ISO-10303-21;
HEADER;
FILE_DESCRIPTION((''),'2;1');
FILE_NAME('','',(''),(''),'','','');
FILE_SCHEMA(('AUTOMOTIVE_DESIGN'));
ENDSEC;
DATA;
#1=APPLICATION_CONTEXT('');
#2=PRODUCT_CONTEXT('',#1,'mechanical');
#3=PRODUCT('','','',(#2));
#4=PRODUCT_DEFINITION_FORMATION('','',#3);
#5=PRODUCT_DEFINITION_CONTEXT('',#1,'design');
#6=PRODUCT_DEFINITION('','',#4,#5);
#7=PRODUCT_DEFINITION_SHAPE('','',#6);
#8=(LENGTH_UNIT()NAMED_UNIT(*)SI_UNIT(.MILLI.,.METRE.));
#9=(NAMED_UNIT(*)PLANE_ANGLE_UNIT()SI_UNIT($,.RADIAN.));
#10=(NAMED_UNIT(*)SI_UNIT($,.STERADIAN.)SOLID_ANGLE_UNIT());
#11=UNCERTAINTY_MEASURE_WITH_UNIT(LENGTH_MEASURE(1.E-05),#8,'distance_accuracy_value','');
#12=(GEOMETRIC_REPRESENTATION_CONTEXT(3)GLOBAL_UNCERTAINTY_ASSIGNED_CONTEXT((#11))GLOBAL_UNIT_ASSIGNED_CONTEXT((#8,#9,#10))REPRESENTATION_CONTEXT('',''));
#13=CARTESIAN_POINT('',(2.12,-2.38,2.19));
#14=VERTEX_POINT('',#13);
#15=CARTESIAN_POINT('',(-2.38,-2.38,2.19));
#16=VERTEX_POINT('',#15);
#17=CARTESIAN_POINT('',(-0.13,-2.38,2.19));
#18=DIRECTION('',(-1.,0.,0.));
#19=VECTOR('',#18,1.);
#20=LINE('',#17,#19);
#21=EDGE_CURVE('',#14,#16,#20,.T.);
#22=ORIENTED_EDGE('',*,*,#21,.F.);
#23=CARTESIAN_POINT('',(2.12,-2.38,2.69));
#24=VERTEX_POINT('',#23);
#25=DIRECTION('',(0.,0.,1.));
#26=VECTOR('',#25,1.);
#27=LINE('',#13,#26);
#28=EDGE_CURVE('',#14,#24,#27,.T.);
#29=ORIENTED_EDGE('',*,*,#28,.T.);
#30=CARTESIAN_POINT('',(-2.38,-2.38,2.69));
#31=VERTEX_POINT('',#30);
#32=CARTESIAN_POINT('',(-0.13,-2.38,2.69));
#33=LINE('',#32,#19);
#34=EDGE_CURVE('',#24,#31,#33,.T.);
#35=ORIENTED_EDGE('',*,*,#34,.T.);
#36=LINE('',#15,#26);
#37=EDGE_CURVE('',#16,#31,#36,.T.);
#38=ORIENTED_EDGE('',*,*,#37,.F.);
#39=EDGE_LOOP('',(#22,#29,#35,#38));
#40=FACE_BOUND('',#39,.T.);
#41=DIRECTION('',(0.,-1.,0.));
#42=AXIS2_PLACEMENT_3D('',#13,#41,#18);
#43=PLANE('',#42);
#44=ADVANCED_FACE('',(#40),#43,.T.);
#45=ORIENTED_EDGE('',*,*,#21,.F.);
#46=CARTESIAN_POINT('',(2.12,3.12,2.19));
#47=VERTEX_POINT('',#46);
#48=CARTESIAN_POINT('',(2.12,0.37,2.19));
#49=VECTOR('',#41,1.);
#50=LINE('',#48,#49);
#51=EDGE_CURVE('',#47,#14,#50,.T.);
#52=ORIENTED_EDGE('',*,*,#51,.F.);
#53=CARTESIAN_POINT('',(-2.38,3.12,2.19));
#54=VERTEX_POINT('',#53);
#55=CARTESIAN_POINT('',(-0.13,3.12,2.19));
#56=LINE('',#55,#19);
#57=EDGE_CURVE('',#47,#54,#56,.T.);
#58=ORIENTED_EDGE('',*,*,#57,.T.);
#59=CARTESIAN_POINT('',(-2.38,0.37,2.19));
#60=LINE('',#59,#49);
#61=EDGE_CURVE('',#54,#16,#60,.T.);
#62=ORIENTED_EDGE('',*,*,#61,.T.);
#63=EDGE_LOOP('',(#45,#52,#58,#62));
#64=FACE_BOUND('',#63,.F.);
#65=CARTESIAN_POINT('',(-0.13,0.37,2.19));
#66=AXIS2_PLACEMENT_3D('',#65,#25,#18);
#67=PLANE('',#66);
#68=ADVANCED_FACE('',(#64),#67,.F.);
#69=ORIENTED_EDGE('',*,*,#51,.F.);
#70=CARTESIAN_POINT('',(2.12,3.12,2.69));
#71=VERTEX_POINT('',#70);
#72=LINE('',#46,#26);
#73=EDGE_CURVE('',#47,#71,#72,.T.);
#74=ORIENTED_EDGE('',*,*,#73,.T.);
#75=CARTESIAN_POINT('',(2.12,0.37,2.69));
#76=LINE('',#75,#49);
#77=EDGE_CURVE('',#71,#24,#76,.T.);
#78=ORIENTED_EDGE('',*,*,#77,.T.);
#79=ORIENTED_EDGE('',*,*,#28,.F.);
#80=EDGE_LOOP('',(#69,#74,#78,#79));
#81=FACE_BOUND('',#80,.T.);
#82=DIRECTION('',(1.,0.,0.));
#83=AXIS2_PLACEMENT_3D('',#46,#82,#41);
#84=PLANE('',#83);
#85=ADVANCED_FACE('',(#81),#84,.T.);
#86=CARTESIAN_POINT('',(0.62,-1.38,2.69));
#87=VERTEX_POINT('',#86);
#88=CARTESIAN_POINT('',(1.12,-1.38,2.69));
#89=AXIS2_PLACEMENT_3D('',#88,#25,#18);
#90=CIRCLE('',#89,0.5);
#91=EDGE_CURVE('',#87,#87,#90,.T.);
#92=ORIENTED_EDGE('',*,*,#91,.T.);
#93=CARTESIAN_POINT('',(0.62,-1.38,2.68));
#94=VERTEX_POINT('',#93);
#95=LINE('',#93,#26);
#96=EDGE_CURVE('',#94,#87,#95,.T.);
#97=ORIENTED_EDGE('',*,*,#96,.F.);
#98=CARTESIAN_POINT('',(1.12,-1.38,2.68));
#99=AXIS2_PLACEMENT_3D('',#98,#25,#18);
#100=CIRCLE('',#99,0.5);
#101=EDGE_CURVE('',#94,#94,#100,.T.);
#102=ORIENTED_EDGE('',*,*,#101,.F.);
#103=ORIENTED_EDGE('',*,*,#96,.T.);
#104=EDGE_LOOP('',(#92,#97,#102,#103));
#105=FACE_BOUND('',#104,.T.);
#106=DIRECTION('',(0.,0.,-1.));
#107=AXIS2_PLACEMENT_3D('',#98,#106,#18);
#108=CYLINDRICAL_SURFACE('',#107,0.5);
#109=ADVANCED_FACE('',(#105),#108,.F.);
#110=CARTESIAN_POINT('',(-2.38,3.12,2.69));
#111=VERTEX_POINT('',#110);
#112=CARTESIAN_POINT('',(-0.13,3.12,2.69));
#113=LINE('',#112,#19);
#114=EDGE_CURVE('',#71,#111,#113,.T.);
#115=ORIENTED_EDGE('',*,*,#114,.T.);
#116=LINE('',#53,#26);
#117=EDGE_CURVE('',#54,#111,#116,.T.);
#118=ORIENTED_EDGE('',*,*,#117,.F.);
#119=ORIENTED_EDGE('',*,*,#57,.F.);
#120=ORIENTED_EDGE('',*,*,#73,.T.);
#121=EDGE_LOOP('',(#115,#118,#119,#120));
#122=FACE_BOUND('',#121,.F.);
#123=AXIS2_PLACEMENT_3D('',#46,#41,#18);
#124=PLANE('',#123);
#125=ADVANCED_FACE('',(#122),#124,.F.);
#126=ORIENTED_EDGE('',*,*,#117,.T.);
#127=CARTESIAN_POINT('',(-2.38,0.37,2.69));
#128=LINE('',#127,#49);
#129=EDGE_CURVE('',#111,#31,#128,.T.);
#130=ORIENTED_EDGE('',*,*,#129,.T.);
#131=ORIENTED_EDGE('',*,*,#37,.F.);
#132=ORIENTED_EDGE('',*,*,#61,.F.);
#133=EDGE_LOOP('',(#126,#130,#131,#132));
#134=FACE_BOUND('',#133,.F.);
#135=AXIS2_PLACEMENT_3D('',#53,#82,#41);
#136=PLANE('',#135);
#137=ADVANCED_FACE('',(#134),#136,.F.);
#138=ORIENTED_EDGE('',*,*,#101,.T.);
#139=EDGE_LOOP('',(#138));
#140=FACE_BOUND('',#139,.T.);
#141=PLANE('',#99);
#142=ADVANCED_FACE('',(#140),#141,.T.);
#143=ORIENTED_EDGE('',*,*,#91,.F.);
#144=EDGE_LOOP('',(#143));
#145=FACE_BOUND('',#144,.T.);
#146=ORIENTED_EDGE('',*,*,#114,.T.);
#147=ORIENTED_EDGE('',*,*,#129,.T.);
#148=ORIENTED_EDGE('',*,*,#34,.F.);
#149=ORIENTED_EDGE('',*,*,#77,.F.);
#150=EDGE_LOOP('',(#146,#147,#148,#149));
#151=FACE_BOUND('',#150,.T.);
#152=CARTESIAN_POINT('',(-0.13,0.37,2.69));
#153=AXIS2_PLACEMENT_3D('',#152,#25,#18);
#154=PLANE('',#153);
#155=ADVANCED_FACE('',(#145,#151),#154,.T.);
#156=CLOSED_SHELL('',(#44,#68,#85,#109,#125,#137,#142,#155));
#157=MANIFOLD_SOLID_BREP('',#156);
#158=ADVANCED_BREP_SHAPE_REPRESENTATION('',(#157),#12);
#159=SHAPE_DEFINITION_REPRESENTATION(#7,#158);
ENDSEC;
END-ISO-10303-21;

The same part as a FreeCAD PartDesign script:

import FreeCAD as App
import Part
import Sketcher

V = App.Vector
Q = App.Units.Quantity

doc = App.newDocument("Part")
body = doc.addObject("PartDesign::Body", "Body")

sketch1 = doc.addObject("Sketcher::SketchObject", "Sketch")
body.addObject(sketch1)
sketch1.AttachmentSupport = (doc.XY_Plane, [""])
sketch1.MapMode = "FlatFace"
sketch1.AttachmentOffset = App.Placement(V(0, 0, 0.49), App.Rotation())
sketch1.addGeometry(Part.Circle(V(1, 4.5, 0), V(0, 0, 1), 0.5), False)
sketch1.addConstraint([
    Sketcher.Constraint("Diameter", 0, Q("1 mm")),
    Sketcher.Constraint("DistanceX", -1, 1, 0, 3, Q("1 mm")),
    Sketcher.Constraint("DistanceY", -1, 1, 0, 3, Q("4.5 mm")),
])
pad1 = doc.addObject("PartDesign::Pad", "Pad")
body.addObject(pad1)
pad1.Profile = sketch1
pad1.Length = 0.01
body2 = doc.addObject("PartDesign::Body", "Body001")

sketch2 = doc.addObject("Sketcher::SketchObject", "Sketch001")
body2.addObject(sketch2)
sketch2.AttachmentSupport = (doc.getObject("XY_Plane001"), [""])
sketch2.MapMode = "FlatFace"
sketch2.addGeometry([
    Part.LineSegment(V(0, 5.5, 0), V(0, 0, 0)),
    Part.LineSegment(V(0, 0, 0), V(4.5, 0, 0)),
    Part.LineSegment(V(4.5, 0, 0), V(4.5, 5.5, 0)),
    Part.LineSegment(V(4.5, 5.5, 0), V(0, 5.5, 0)),
], False)
sketch2.addConstraint([
    Sketcher.Constraint("Coincident", 0, 2, 1, 1),
    Sketcher.Constraint("Coincident", 1, 2, 2, 1),
    Sketcher.Constraint("Coincident", 2, 2, 3, 1),
    Sketcher.Constraint("Coincident", 3, 2, 0, 1),
    Sketcher.Constraint("Vertical", 0),
    Sketcher.Constraint("Horizontal", 1),
    Sketcher.Constraint("Vertical", 2),
    Sketcher.Constraint("Horizontal", 3),
    Sketcher.Constraint("Coincident", 0, 2, -1, 1),
    Sketcher.Constraint("DistanceX", 1, 1, 1, 2, Q("4.5 mm")),
    Sketcher.Constraint("DistanceY", 0, 2, 0, 1, Q("5.5 mm")),
])
pad2 = doc.addObject("PartDesign::Pad", "Pad001")
body2.addObject(pad2)
pad2.Profile = sketch2
pad2.Length = 0.5
doc.recompute()

boolean = doc.addObject("PartDesign::Boolean", "Boolean")
body2.addObject(boolean)
boolean.Type = "Cut"
boolean.addObjects([body])
body3 = doc.addObject("PartDesign::Body", "Body002")
doc.recompute()

body2.Placement = App.Placement(V(2.12, 3.12, 2.19), App.Rotation(V(0, 0, 1), 180))
boolean2 = doc.addObject("PartDesign::Boolean", "Boolean001")
body3.addObject(boolean2)
boolean2.Type = "Fuse"
boolean2.addObjects([body2])

doc.recompute()
